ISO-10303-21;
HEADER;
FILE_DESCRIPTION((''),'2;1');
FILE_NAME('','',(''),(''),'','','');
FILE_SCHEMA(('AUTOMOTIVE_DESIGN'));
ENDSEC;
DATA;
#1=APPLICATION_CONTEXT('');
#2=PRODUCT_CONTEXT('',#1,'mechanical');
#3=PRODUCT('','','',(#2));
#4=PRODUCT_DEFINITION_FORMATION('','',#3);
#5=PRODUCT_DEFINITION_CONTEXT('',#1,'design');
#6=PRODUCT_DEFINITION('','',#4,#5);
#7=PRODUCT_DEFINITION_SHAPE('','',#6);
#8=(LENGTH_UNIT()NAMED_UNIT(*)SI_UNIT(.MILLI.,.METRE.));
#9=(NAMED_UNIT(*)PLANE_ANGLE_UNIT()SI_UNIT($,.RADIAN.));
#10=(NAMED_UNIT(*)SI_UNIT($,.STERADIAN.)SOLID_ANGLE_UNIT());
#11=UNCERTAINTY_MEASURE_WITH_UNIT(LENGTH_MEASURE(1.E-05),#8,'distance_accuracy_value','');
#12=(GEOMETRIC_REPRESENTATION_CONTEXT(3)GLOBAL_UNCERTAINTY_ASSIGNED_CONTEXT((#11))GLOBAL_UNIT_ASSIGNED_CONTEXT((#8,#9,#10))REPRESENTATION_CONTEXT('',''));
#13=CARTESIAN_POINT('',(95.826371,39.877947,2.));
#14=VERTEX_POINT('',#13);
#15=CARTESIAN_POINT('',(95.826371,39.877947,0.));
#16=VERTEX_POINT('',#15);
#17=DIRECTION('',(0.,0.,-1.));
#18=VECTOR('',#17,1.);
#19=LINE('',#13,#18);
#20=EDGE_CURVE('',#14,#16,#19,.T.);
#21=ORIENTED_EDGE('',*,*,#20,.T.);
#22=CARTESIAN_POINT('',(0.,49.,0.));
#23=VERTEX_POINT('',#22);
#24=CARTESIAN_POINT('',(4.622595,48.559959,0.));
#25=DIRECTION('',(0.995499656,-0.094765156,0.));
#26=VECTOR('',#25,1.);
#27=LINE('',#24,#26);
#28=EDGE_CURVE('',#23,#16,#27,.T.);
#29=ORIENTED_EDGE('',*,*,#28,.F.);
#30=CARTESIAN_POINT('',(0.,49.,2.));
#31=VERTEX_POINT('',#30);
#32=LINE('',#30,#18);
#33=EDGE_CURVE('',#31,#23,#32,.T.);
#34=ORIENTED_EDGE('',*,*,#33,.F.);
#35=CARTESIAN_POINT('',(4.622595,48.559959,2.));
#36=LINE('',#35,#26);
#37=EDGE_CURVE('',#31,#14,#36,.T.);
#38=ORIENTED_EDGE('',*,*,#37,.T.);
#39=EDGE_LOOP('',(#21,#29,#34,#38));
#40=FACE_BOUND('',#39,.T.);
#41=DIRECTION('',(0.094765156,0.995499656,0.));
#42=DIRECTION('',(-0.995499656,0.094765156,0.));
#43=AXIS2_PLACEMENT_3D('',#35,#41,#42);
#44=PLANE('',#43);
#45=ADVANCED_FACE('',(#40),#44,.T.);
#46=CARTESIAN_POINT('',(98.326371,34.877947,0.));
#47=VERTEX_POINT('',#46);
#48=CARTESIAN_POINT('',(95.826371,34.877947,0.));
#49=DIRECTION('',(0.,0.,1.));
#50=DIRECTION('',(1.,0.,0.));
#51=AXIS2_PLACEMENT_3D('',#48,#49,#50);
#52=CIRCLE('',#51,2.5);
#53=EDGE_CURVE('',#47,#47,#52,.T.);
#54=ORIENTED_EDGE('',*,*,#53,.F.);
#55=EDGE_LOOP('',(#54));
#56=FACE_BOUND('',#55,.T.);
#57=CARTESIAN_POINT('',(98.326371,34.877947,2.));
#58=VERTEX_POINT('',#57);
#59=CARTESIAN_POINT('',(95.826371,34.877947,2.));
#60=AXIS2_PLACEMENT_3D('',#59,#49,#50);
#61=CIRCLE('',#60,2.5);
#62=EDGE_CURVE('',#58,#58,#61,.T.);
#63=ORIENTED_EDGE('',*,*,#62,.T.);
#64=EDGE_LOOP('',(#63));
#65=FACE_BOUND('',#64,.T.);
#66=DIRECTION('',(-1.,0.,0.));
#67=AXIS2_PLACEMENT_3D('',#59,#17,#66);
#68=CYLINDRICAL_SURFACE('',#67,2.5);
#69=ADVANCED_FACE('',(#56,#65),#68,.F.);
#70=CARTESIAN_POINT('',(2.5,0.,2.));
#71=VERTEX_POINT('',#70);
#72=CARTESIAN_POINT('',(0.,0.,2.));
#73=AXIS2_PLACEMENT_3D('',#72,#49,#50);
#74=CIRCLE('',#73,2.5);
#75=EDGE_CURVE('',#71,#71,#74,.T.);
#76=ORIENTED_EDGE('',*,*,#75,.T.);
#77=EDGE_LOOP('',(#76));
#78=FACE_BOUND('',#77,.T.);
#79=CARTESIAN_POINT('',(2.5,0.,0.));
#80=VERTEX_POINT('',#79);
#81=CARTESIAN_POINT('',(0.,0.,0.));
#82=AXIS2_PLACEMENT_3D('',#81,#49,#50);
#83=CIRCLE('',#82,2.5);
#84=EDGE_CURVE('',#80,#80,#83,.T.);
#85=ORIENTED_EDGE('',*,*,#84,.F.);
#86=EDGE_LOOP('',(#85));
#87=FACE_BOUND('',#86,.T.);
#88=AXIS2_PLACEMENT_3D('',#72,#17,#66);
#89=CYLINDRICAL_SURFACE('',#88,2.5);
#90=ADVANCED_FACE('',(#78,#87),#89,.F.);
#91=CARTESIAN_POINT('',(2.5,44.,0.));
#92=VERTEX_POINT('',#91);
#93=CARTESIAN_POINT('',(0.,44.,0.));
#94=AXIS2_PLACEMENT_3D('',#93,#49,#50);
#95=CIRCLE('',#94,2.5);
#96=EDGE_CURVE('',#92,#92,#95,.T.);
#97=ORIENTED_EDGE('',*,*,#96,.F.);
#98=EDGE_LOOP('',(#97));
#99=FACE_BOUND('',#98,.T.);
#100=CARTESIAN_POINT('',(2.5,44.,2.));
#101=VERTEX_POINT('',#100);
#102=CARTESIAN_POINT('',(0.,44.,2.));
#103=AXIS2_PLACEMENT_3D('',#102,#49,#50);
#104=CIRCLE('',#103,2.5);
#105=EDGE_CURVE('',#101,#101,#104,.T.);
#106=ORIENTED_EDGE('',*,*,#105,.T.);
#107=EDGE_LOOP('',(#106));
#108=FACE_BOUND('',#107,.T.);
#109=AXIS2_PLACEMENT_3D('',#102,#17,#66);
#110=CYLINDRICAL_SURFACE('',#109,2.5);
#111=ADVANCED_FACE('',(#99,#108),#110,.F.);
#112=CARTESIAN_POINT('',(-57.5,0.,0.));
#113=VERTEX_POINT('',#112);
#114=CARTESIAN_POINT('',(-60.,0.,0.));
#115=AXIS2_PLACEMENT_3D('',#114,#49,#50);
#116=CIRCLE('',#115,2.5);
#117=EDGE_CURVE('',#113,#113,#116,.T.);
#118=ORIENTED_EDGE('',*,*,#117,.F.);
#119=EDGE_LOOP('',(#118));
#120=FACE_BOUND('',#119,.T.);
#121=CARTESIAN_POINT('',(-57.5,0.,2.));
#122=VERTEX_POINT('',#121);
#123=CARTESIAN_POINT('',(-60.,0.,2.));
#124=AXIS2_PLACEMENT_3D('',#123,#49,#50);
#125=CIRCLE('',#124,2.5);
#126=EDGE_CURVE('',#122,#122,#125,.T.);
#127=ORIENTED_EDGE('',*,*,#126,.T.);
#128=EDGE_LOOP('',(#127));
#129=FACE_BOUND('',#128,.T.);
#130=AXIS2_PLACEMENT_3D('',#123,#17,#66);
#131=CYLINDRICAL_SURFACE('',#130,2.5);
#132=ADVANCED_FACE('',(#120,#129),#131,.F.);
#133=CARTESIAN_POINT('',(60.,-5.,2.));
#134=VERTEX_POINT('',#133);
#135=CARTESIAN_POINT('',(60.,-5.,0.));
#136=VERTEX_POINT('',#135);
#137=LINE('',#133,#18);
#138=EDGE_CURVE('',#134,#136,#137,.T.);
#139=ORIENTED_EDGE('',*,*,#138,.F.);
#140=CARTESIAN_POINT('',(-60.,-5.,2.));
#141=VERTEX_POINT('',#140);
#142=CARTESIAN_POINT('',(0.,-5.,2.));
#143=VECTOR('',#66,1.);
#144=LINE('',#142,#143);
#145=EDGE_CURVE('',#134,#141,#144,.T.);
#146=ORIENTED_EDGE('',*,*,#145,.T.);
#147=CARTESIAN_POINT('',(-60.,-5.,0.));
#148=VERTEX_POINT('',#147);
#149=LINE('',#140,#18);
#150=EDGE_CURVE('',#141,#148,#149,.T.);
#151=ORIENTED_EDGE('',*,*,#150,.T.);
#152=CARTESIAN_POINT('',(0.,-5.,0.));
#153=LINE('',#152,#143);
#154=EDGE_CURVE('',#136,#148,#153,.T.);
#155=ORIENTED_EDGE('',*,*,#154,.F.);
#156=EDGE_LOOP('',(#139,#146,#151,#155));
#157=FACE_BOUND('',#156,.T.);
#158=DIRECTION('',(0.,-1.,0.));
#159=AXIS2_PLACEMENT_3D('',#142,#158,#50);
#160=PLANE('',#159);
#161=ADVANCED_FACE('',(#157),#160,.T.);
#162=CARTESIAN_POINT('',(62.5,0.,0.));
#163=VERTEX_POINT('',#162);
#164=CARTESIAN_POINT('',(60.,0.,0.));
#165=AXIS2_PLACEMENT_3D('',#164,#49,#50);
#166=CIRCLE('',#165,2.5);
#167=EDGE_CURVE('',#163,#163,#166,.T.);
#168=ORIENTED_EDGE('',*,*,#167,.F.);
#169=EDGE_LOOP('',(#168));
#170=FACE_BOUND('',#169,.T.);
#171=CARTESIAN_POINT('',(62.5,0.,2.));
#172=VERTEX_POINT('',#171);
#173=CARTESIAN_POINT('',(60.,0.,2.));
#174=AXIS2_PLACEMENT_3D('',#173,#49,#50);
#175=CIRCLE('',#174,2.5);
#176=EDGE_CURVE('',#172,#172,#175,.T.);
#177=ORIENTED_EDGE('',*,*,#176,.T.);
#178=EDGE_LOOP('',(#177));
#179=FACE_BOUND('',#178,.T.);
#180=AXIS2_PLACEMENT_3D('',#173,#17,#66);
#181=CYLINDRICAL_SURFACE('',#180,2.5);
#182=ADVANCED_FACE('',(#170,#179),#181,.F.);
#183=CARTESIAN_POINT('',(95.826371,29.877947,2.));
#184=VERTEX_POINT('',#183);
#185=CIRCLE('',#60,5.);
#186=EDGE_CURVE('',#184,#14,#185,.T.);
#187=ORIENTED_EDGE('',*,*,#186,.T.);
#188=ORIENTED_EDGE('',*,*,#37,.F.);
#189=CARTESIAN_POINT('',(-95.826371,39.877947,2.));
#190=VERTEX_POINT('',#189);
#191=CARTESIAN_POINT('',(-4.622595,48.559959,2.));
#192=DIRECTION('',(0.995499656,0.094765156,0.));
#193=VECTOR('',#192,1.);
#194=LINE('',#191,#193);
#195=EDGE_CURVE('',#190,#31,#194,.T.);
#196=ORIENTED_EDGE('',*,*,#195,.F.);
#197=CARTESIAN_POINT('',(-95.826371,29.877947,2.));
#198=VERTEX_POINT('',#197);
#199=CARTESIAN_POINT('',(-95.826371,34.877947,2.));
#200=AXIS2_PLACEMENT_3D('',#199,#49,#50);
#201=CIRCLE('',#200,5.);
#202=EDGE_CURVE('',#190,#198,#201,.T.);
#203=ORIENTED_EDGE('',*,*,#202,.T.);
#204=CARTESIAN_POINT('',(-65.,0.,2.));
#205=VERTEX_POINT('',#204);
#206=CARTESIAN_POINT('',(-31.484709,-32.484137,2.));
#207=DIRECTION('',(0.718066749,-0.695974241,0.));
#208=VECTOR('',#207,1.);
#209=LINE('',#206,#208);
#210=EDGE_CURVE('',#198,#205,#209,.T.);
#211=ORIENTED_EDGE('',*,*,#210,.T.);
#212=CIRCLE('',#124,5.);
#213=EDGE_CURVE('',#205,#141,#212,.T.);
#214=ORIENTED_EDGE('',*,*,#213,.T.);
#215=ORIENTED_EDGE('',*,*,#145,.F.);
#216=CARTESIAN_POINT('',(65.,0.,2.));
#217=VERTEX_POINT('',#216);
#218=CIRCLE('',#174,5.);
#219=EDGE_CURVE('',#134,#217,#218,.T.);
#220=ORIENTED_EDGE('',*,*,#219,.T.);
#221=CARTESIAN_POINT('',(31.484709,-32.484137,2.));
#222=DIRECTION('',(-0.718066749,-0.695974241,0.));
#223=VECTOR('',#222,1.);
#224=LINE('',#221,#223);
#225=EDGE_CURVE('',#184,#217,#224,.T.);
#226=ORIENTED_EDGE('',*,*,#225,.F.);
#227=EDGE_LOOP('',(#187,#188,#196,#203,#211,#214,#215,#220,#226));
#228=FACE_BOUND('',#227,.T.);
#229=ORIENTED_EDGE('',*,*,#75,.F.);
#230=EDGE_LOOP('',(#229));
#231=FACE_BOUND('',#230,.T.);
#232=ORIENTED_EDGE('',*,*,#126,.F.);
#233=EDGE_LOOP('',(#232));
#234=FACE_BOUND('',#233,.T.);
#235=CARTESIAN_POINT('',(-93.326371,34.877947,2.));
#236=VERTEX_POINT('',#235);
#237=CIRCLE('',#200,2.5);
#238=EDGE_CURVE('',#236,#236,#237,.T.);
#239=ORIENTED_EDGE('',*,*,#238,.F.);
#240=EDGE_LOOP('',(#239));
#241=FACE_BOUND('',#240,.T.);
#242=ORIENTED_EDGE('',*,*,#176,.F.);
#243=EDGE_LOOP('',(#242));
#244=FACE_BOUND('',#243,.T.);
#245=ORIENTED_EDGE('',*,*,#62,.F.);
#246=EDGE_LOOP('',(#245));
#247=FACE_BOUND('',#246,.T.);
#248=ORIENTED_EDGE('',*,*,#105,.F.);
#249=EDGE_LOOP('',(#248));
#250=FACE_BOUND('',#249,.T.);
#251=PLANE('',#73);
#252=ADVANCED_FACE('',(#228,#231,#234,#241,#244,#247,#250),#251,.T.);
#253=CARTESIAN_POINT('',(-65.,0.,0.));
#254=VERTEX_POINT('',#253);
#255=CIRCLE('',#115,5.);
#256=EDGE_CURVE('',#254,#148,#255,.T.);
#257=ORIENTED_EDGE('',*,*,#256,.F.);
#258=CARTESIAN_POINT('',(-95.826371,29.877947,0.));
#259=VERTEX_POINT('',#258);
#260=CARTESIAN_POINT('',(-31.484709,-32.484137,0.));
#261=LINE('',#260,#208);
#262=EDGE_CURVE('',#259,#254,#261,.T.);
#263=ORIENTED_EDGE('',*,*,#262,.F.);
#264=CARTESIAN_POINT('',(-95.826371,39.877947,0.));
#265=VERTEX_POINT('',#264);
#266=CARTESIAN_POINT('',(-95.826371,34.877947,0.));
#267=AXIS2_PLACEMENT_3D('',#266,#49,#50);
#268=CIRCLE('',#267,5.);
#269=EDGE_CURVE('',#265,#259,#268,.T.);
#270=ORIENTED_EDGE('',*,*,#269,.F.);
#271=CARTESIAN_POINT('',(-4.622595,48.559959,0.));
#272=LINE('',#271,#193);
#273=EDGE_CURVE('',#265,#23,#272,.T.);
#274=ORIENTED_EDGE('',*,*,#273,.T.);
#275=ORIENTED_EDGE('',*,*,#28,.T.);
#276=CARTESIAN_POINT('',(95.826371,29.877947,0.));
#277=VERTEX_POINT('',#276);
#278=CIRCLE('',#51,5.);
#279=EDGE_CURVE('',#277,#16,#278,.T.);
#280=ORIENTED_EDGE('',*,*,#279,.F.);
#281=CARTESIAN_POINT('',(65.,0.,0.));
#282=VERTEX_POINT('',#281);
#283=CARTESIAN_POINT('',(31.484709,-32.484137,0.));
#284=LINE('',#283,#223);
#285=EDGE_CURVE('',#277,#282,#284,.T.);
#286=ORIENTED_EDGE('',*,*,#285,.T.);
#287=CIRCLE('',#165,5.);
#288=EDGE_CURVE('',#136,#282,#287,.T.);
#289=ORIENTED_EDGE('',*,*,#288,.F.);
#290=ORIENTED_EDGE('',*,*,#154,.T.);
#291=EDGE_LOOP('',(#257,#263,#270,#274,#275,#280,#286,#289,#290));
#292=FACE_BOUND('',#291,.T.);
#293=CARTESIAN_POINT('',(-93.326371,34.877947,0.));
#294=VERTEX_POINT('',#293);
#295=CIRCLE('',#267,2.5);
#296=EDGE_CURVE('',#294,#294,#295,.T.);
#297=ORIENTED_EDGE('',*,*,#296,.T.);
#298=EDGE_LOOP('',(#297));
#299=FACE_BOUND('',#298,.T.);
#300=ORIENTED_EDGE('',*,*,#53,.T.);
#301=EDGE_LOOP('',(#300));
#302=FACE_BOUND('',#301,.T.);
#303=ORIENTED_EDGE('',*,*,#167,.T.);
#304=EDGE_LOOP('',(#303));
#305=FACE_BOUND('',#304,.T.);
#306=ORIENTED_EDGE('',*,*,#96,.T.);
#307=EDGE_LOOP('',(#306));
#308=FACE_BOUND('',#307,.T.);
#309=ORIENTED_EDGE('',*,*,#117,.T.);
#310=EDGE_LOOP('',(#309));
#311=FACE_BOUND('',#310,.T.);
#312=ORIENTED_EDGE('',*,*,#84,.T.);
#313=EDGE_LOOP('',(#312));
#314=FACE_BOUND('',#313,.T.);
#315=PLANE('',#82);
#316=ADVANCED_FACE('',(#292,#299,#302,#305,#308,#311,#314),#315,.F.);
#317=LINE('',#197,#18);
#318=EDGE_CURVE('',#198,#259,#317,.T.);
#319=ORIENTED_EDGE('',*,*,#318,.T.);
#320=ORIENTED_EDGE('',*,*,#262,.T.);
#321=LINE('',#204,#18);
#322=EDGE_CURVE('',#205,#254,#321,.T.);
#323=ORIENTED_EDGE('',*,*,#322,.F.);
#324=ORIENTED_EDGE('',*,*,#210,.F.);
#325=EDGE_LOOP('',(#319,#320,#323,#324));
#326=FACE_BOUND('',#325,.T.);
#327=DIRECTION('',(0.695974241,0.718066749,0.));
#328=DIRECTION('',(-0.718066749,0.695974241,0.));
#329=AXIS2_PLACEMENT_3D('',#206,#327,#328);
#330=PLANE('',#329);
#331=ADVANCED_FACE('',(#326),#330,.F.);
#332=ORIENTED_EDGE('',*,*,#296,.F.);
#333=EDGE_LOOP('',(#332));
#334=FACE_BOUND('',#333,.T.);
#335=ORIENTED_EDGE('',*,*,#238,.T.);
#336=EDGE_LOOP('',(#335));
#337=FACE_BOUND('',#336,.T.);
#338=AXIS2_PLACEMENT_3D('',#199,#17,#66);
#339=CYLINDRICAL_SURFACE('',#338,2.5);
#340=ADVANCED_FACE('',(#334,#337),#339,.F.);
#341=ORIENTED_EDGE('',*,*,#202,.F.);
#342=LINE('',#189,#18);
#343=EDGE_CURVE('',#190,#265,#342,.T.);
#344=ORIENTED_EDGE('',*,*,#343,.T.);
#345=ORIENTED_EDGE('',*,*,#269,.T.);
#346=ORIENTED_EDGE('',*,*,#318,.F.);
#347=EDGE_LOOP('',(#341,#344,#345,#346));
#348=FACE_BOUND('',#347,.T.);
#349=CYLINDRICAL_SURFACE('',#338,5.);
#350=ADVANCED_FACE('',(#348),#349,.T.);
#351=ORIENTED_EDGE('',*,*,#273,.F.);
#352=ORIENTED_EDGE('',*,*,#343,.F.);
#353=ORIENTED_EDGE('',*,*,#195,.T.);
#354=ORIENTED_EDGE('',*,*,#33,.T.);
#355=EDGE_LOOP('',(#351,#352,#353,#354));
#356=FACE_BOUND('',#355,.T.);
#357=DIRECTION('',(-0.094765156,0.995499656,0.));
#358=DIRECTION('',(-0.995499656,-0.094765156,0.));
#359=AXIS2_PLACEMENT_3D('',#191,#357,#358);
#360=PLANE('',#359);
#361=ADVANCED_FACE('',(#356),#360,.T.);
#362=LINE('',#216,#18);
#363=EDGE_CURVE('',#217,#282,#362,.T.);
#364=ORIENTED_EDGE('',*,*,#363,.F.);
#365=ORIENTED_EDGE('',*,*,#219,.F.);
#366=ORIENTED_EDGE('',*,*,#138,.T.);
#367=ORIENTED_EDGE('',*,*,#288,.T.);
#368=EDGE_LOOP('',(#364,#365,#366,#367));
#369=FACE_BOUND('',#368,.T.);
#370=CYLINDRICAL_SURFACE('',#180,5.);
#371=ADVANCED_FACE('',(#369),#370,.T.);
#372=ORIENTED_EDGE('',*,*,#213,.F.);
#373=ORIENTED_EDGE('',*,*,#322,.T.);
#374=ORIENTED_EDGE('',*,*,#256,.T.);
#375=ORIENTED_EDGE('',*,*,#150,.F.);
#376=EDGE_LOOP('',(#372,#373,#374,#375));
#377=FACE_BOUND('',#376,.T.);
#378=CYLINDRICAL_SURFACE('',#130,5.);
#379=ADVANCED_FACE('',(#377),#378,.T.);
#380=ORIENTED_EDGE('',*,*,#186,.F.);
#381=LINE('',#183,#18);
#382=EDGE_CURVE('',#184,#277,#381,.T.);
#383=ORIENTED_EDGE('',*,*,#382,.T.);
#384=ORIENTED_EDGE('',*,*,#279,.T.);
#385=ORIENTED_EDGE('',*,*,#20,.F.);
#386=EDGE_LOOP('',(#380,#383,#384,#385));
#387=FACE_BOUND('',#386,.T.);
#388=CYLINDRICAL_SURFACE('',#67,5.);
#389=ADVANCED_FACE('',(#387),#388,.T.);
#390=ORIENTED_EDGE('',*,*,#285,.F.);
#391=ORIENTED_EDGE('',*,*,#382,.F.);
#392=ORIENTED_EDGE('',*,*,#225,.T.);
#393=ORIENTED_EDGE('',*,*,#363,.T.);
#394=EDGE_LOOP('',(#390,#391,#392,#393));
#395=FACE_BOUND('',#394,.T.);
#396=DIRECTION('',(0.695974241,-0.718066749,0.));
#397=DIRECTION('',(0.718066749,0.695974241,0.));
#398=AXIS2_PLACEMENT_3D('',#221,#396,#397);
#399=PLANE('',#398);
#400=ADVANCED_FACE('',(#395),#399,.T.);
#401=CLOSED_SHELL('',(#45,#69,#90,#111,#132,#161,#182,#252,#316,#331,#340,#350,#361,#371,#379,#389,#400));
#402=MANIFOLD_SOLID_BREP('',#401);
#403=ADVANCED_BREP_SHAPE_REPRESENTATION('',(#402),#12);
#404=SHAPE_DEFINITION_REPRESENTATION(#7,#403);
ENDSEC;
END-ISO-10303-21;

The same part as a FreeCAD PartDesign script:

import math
import FreeCAD as App
import Part
import Sketcher
Q = App.Units.Quantity

doc = App.newDocument("Part")
body = doc.addObject("PartDesign::Body", "Body")

# Sketch on XY plane
sketch1 = body.newObject("Sketcher::SketchObject", "Sketch")
sketch1.AttachmentSupport = (doc.getObject("XY_Plane"), [""])
sketch1.MapMode = "FlatFace"
sketch1.addGeometry([
    Part.ArcOfCircle(Part.Circle(App.Vector(-95.8, 34.9, 0), App.Vector(0, 0, 1), 5), math.radians(90), math.radians(270)),  # 0
    Part.LineSegment(App.Vector(-95.8, 29.9, 0), App.Vector(-65, 0, 0)),  # 1
    Part.ArcOfCircle(Part.Circle(App.Vector(-60, 0, 0), App.Vector(0, 0, 1), 5), math.radians(180), math.radians(270)),  # 2
    Part.LineSegment(App.Vector(-60, -5, 0), App.Vector(60, -5, 0)),  # 3
    Part.ArcOfCircle(Part.Circle(App.Vector(60, 0, 0), App.Vector(0, 0, 1), 5), math.radians(-90), math.radians(0)),  # 4
    Part.LineSegment(App.Vector(65, 0, 0), App.Vector(95.8, 29.9, 0)),  # 5
    Part.ArcOfCircle(Part.Circle(App.Vector(95.8, 34.9, 0), App.Vector(0, 0, 1), 5), math.radians(-90), math.radians(90)),  # 6
    Part.LineSegment(App.Vector(95.8, 39.9, 0), App.Vector(0, 49, 0)),  # 7
    Part.LineSegment(App.Vector(0, 49, 0), App.Vector(-95.8, 39.9, 0)),  # 8
    Part.Circle(App.Vector(-60, 0, 0), App.Vector(0, 0, 1), 2.5),  # 9
    Part.Circle(App.Vector(0, 0, 0), App.Vector(0, 0, 1), 2.5),  # 10
    Part.Circle(App.Vector(60, 0, 0), App.Vector(0, 0, 1), 2.5),  # 11
    Part.Circle(App.Vector(-95.8, 34.9, 0), App.Vector(0, 0, 1), 2.5),  # 12
    Part.Circle(App.Vector(0, 44, 0), App.Vector(0, 0, 1), 2.5),  # 13
    Part.Circle(App.Vector(95.8, 34.9, 0), App.Vector(0, 0, 1), 2.5),  # 14
], False)
sketch1.addConstraint([
    Sketcher.Constraint("Coincident", 0, 2, 1, 1),
    Sketcher.Constraint("Coincident", 1, 2, 2, 1),
    Sketcher.Constraint("Tangent", 2, 2, 3, 1),
    Sketcher.Constraint("Tangent", 3, 2, 4, 1),
    Sketcher.Constraint("Coincident", 4, 2, 5, 1),
    Sketcher.Constraint("Coincident", 5, 2, 6, 1),
    Sketcher.Constraint("Coincident", 6, 2, 7, 1),
    Sketcher.Constraint("Coincident", 7, 2, 8, 1),
    Sketcher.Constraint("Coincident", 8, 2, 0, 1),
    Sketcher.Constraint("Horizontal", 3),
    Sketcher.Constraint("Coincident", 10, 3, -1, 1),
    Sketcher.Constraint("Coincident", 9, 3, 2, 3),
    Sketcher.Constraint("Coincident", 11, 3, 4, 3),
    Sketcher.Constraint("Coincident", 12, 3, 0, 3),
    Sketcher.Constraint("Coincident", 14, 3, 6, 3),
    Sketcher.Constraint("Equal", 0, 2),
    Sketcher.Constraint("Equal", 2, 4),
    Sketcher.Constraint("Equal", 4, 6),
    Sketcher.Constraint("Equal", 9, 10),
    Sketcher.Constraint("Equal", 10, 11),
    Sketcher.Constraint("Equal", 11, 12),
    Sketcher.Constraint("Equal", 12, 13),
    Sketcher.Constraint("Equal", 13, 14),
    Sketcher.Constraint("Symmetric", 2, 3, 4, 3, -1, 1),
    Sketcher.Constraint("Symmetric", 0, 3, 6, 3, -2),
    Sketcher.Constraint("PointOnObject", 13, 3, -2),
    Sketcher.Constraint("PointOnObject", 1, 2, -1),
    Sketcher.Constraint("PointOnObject", 4, 2, -1),
    Sketcher.Constraint("PointOnObject", 7, 2, -2),
    Sketcher.Constraint("Vertical", 12, 3, 0, 2),
    Sketcher.Constraint("Vertical", 14, 3, 5, 2),
    Sketcher.Constraint("Vertical", 5, 2, 6, 2),
    Sketcher.Constraint("Vertical", 0, 2, 8, 2),
    Sketcher.Constraint("Diameter", 9, Q("5 mm")),
    Sketcher.Constraint("Radius", 0, Q("5 mm")),
    Sketcher.Constraint("DistanceX", 3, 1, 3, 2, Q("120 mm")),
    Sketcher.Constraint("DistanceY", -1, 1, 13, 3, Q("44 mm")),
    Sketcher.Constraint("DistanceY", -1, 1, 7, 2, Q("49 mm")),
    Sketcher.Constraint("Distance", 7, Q("96.259572 mm")),
    Sketcher.Constraint("DistanceX", 0, 3, -1, 1, Q("95.826371 mm")),
])
pad1 = body.newObject("PartDesign::Pad", "Pad")
pad1.Profile = sketch1
pad1.Length = 2

doc.recompute()
